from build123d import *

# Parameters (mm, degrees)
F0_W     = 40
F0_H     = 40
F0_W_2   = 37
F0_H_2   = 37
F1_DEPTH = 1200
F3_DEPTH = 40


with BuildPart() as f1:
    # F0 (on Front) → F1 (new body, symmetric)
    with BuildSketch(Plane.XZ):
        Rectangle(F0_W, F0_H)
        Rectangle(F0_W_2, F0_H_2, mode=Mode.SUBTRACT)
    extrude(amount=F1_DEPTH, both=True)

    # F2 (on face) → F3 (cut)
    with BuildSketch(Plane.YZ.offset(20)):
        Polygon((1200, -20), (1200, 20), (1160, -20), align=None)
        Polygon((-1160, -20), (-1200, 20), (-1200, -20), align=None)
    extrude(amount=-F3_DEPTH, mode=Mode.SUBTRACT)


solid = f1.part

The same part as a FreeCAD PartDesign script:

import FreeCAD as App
import Part
import Sketcher
from FreeCAD import Vector
Q = App.Units.Quantity


def add_polygon(sketch, points):
    """Adds a closed chain of lines whose ends are joined by coincident constraints."""
    first, n = sketch.GeometryCount, len(points)
    for a, b in zip(points, points[1:] + points[:1]):
        sketch.addGeometry(Part.LineSegment(App.Vector(*a, 0), App.Vector(*b, 0)), False)
    for i in range(n):
        sketch.addConstraint(Sketcher.Constraint("Coincident", first + i, 2, first + (i + 1) % n, 1))

doc = App.newDocument("Part")
body = doc.addObject("PartDesign::Body", "Body")

# Sketch on XZ plane
sketch1 = body.newObject("Sketcher::SketchObject", "Sketch")
sketch1.AttachmentSupport = (doc.getObject("XZ_Plane"), [""])
sketch1.MapMode = "FlatFace"
add_polygon(sketch1, [(-20, 20), (-20, -20), (20, -20), (20, 20)])  # lines 0-3
add_polygon(sketch1, [(18, -18), (-18, -18), (-18, 18), (18, 18)])  # lines 4-7
sketch1.addConstraint([
    Sketcher.Constraint("Vertical", 0),
    Sketcher.Constraint("Horizontal", 1),
    Sketcher.Constraint("Vertical", 2),
    Sketcher.Constraint("Horizontal", 3),
    Sketcher.Constraint("Horizontal", 4),
    Sketcher.Constraint("Vertical", 5),
    Sketcher.Constraint("Horizontal", 6),
    Sketcher.Constraint("Vertical", 7),
    Sketcher.Constraint("Symmetric", 0, 2, 2, 2, -1, 1),
    Sketcher.Constraint("Symmetric", 4, 2, 6, 2, -1, 1),
    Sketcher.Constraint("Equal", 3, 0),
    Sketcher.Constraint("Equal", 6, 5),
    Sketcher.Constraint("DistanceX", 1, 1, 1, 2, Q("40 mm")),
    Sketcher.Constraint("DistanceX", 4, 2, 4, 1, Q("37 mm")),
])
pad1 = body.newObject("PartDesign::Pad", "Pad")
pad1.Profile = sketch1
pad1.Length = 2400
pad1.Midplane = True

# Sketch on YZ plane
sketch2 = body.newObject("Sketcher::SketchObject", "Sketch001")
sketch2.AttachmentSupport = (doc.getObject("YZ_Plane"), [""])
sketch2.MapMode = "FlatFace"
sketch2.AttachmentOffset = App.Placement(Vector(0, 0, 20), App.Rotation())
add_polygon(sketch2, [(1200, -20), (1200, 20), (1160, -20)])  # lines 0-2
add_polygon(sketch2, [(-1160, -20), (-1200, 20), (-1200, -20)])  # lines 3-5
sketch2.addConstraint([
    Sketcher.Constraint("Vertical", 0),
    Sketcher.Constraint("Horizontal", 2),
    Sketcher.Constraint("Vertical", 4),
    Sketcher.Constraint("Horizontal", 5),
    Sketcher.Constraint("Symmetric", 2, 2, 3, 2, -1, 1),
    Sketcher.Constraint("Symmetric", 1, 2, 5, 2, -2),
    Sketcher.Constraint("Perpendicular", 1, 3),
    Sketcher.Constraint("Horizontal", 0, 2, 3, 2),
    Sketcher.Constraint("DistanceX", 2, 1, 2, 2, Q("40 mm")),
    Sketcher.Constraint("DistanceX", -1, 1, 0, 2, Q("1200 mm")),
])
pocket1 = body.newObject("PartDesign::Pocket", "Pocket")
pocket1.Profile = sketch2
pocket1.Length = 40

doc.recompute()
